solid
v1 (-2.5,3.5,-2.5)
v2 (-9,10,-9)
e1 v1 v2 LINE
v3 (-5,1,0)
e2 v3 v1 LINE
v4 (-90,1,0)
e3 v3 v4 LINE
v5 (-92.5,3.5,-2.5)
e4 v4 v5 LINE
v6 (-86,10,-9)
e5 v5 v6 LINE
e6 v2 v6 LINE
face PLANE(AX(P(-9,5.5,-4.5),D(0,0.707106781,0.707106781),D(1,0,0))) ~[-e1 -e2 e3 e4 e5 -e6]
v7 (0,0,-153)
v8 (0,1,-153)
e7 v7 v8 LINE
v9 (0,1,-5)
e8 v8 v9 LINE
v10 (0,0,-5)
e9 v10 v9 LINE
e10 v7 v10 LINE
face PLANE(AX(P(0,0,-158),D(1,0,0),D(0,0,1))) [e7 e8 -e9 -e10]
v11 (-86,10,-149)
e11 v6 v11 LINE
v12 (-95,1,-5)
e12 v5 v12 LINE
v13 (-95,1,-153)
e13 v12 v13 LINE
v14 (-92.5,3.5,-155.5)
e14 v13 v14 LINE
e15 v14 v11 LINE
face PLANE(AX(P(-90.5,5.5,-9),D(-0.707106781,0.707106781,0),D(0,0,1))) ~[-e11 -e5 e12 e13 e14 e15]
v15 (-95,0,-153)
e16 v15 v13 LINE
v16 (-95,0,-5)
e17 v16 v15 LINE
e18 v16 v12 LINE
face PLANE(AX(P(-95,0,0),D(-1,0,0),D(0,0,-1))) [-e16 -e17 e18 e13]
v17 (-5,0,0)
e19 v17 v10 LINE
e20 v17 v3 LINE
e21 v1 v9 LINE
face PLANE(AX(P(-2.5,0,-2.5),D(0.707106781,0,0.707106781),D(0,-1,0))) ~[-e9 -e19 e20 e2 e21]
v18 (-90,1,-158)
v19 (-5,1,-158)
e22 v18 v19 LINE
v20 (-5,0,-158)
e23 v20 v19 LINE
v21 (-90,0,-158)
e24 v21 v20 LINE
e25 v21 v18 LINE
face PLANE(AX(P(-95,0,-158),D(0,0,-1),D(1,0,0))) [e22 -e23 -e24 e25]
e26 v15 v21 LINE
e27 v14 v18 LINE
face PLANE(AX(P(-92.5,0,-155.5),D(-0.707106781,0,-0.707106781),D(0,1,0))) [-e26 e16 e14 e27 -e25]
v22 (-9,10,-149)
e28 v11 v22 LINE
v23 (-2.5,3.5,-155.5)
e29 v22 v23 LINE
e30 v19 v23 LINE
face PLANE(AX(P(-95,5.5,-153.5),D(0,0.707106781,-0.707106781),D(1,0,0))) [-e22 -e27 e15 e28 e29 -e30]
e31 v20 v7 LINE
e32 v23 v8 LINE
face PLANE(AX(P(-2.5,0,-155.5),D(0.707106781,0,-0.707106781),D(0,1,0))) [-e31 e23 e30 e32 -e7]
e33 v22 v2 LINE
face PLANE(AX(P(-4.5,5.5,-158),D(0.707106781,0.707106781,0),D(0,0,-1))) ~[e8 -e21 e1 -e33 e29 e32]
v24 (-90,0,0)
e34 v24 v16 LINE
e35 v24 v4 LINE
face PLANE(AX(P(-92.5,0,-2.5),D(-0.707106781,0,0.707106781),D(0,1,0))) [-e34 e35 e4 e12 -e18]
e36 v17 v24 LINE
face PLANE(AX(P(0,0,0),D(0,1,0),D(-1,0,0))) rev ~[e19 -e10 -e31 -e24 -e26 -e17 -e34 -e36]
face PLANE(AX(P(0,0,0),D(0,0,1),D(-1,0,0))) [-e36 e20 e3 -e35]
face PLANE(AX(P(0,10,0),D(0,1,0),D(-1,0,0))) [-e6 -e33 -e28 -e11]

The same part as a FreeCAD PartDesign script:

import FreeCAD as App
import Part
import Sketcher
from FreeCAD import Vector


def edges_at(feature, points):
    """Names of the edges that pass closest to the given points."""
    edges = feature.Shape.Edges
    near = lambda p: min(range(len(edges)), key=lambda i: edges[i].distToShape(Part.Vertex(*p))[0])
    return sorted({f"Edge{near(p) + 1}" for p in points})


def add_polygon(sketch, points):
    """Adds a closed chain of lines whose ends are joined by coincident constraints."""
    first, n = sketch.GeometryCount, len(points)
    for a, b in zip(points, points[1:] + points[:1]):
        sketch.addGeometry(Part.LineSegment(App.Vector(*a, 0), App.Vector(*b, 0)), False)
    for i in range(n):
        sketch.addConstraint(Sketcher.Constraint("Coincident", first + i, 2, first + (i + 1) % n, 1))

doc = App.newDocument("Part")
body = doc.addObject("PartDesign::Body", "Body")

sketch1 = body.newObject("Sketcher::SketchObject", "Sketch")
sketch1.AttachmentSupport = (doc.getObject("XZ_Plane"), [""])
sketch1.MapMode = "FlatFace"
add_polygon(sketch1, [(-95, 0), (0, 0), (0, -158), (-95, -158)])
sketch1.addConstraint(Sketcher.Constraint("Horizontal", 0))
sketch1.addConstraint(Sketcher.Constraint("Vertical", 1))
sketch1.addConstraint(Sketcher.Constraint("Horizontal", 2))
sketch1.addConstraint(Sketcher.Constraint("Vertical", 3))
sketch1.addConstraint(Sketcher.Constraint("Coincident", 0, 2, -1, 1))
sketch1.addConstraint(Sketcher.Constraint("DistanceX", 0, 1, 0, 2, 95.0))
sketch1.addConstraint(Sketcher.Constraint("DistanceY", 1, 2, 1, 1, 158.0))
pad1 = body.newObject("PartDesign::Pad", "Pad")
pad1.Profile = sketch1
pad1.Length = 10
pad1.Reversed = True
doc.recompute()

chamfer = body.newObject("PartDesign::Chamfer", "Chamfer")
chamfer.Base = (pad1, edges_at(pad1, [(0, 10, -79)]))
chamfer.Size = 9
doc.recompute()

chamfer2 = body.newObject("PartDesign::Chamfer", "Chamfer001")
chamfer2.Base = (chamfer, edges_at(chamfer, [(-52, 10, 0)]))
chamfer2.Size = 9
doc.recompute()

chamfer3 = body.newObject("PartDesign::Chamfer", "Chamfer002")
chamfer3.Base = (chamfer2, edges_at(chamfer2, [(-52, 10, -158)]))
chamfer3.Size = 9
doc.recompute()

chamfer4 = body.newObject("PartDesign::Chamfer", "Chamfer003")
chamfer4.Base = (chamfer3, edges_at(chamfer3, [(-95, 10, -79)]))
chamfer4.Size = 9
doc.recompute()

chamfer5 = body.newObject("PartDesign::Chamfer", "Chamfer004")
chamfer5.Base = (chamfer4, edges_at(chamfer4, [(0, 0.5, 0)]))
chamfer5.Size = 5
doc.recompute()

chamfer6 = body.newObject("PartDesign::Chamfer", "Chamfer005")
chamfer6.Base = (chamfer5, edges_at(chamfer5, [(-95, 0.5, 0)]))
chamfer6.Size = 5
doc.recompute()

chamfer7 = body.newObject("PartDesign::Chamfer", "Chamfer006")
chamfer7.Base = (chamfer6, edges_at(chamfer6, [(-95, 0.5, -158)]))
chamfer7.Size = 5
doc.recompute()

chamfer8 = body.newObject("PartDesign::Chamfer", "Chamfer007")
chamfer8.Base = (chamfer7, edges_at(chamfer7, [(0, 0.5, -158)]))
chamfer8.Size = 5

doc.recompute()
